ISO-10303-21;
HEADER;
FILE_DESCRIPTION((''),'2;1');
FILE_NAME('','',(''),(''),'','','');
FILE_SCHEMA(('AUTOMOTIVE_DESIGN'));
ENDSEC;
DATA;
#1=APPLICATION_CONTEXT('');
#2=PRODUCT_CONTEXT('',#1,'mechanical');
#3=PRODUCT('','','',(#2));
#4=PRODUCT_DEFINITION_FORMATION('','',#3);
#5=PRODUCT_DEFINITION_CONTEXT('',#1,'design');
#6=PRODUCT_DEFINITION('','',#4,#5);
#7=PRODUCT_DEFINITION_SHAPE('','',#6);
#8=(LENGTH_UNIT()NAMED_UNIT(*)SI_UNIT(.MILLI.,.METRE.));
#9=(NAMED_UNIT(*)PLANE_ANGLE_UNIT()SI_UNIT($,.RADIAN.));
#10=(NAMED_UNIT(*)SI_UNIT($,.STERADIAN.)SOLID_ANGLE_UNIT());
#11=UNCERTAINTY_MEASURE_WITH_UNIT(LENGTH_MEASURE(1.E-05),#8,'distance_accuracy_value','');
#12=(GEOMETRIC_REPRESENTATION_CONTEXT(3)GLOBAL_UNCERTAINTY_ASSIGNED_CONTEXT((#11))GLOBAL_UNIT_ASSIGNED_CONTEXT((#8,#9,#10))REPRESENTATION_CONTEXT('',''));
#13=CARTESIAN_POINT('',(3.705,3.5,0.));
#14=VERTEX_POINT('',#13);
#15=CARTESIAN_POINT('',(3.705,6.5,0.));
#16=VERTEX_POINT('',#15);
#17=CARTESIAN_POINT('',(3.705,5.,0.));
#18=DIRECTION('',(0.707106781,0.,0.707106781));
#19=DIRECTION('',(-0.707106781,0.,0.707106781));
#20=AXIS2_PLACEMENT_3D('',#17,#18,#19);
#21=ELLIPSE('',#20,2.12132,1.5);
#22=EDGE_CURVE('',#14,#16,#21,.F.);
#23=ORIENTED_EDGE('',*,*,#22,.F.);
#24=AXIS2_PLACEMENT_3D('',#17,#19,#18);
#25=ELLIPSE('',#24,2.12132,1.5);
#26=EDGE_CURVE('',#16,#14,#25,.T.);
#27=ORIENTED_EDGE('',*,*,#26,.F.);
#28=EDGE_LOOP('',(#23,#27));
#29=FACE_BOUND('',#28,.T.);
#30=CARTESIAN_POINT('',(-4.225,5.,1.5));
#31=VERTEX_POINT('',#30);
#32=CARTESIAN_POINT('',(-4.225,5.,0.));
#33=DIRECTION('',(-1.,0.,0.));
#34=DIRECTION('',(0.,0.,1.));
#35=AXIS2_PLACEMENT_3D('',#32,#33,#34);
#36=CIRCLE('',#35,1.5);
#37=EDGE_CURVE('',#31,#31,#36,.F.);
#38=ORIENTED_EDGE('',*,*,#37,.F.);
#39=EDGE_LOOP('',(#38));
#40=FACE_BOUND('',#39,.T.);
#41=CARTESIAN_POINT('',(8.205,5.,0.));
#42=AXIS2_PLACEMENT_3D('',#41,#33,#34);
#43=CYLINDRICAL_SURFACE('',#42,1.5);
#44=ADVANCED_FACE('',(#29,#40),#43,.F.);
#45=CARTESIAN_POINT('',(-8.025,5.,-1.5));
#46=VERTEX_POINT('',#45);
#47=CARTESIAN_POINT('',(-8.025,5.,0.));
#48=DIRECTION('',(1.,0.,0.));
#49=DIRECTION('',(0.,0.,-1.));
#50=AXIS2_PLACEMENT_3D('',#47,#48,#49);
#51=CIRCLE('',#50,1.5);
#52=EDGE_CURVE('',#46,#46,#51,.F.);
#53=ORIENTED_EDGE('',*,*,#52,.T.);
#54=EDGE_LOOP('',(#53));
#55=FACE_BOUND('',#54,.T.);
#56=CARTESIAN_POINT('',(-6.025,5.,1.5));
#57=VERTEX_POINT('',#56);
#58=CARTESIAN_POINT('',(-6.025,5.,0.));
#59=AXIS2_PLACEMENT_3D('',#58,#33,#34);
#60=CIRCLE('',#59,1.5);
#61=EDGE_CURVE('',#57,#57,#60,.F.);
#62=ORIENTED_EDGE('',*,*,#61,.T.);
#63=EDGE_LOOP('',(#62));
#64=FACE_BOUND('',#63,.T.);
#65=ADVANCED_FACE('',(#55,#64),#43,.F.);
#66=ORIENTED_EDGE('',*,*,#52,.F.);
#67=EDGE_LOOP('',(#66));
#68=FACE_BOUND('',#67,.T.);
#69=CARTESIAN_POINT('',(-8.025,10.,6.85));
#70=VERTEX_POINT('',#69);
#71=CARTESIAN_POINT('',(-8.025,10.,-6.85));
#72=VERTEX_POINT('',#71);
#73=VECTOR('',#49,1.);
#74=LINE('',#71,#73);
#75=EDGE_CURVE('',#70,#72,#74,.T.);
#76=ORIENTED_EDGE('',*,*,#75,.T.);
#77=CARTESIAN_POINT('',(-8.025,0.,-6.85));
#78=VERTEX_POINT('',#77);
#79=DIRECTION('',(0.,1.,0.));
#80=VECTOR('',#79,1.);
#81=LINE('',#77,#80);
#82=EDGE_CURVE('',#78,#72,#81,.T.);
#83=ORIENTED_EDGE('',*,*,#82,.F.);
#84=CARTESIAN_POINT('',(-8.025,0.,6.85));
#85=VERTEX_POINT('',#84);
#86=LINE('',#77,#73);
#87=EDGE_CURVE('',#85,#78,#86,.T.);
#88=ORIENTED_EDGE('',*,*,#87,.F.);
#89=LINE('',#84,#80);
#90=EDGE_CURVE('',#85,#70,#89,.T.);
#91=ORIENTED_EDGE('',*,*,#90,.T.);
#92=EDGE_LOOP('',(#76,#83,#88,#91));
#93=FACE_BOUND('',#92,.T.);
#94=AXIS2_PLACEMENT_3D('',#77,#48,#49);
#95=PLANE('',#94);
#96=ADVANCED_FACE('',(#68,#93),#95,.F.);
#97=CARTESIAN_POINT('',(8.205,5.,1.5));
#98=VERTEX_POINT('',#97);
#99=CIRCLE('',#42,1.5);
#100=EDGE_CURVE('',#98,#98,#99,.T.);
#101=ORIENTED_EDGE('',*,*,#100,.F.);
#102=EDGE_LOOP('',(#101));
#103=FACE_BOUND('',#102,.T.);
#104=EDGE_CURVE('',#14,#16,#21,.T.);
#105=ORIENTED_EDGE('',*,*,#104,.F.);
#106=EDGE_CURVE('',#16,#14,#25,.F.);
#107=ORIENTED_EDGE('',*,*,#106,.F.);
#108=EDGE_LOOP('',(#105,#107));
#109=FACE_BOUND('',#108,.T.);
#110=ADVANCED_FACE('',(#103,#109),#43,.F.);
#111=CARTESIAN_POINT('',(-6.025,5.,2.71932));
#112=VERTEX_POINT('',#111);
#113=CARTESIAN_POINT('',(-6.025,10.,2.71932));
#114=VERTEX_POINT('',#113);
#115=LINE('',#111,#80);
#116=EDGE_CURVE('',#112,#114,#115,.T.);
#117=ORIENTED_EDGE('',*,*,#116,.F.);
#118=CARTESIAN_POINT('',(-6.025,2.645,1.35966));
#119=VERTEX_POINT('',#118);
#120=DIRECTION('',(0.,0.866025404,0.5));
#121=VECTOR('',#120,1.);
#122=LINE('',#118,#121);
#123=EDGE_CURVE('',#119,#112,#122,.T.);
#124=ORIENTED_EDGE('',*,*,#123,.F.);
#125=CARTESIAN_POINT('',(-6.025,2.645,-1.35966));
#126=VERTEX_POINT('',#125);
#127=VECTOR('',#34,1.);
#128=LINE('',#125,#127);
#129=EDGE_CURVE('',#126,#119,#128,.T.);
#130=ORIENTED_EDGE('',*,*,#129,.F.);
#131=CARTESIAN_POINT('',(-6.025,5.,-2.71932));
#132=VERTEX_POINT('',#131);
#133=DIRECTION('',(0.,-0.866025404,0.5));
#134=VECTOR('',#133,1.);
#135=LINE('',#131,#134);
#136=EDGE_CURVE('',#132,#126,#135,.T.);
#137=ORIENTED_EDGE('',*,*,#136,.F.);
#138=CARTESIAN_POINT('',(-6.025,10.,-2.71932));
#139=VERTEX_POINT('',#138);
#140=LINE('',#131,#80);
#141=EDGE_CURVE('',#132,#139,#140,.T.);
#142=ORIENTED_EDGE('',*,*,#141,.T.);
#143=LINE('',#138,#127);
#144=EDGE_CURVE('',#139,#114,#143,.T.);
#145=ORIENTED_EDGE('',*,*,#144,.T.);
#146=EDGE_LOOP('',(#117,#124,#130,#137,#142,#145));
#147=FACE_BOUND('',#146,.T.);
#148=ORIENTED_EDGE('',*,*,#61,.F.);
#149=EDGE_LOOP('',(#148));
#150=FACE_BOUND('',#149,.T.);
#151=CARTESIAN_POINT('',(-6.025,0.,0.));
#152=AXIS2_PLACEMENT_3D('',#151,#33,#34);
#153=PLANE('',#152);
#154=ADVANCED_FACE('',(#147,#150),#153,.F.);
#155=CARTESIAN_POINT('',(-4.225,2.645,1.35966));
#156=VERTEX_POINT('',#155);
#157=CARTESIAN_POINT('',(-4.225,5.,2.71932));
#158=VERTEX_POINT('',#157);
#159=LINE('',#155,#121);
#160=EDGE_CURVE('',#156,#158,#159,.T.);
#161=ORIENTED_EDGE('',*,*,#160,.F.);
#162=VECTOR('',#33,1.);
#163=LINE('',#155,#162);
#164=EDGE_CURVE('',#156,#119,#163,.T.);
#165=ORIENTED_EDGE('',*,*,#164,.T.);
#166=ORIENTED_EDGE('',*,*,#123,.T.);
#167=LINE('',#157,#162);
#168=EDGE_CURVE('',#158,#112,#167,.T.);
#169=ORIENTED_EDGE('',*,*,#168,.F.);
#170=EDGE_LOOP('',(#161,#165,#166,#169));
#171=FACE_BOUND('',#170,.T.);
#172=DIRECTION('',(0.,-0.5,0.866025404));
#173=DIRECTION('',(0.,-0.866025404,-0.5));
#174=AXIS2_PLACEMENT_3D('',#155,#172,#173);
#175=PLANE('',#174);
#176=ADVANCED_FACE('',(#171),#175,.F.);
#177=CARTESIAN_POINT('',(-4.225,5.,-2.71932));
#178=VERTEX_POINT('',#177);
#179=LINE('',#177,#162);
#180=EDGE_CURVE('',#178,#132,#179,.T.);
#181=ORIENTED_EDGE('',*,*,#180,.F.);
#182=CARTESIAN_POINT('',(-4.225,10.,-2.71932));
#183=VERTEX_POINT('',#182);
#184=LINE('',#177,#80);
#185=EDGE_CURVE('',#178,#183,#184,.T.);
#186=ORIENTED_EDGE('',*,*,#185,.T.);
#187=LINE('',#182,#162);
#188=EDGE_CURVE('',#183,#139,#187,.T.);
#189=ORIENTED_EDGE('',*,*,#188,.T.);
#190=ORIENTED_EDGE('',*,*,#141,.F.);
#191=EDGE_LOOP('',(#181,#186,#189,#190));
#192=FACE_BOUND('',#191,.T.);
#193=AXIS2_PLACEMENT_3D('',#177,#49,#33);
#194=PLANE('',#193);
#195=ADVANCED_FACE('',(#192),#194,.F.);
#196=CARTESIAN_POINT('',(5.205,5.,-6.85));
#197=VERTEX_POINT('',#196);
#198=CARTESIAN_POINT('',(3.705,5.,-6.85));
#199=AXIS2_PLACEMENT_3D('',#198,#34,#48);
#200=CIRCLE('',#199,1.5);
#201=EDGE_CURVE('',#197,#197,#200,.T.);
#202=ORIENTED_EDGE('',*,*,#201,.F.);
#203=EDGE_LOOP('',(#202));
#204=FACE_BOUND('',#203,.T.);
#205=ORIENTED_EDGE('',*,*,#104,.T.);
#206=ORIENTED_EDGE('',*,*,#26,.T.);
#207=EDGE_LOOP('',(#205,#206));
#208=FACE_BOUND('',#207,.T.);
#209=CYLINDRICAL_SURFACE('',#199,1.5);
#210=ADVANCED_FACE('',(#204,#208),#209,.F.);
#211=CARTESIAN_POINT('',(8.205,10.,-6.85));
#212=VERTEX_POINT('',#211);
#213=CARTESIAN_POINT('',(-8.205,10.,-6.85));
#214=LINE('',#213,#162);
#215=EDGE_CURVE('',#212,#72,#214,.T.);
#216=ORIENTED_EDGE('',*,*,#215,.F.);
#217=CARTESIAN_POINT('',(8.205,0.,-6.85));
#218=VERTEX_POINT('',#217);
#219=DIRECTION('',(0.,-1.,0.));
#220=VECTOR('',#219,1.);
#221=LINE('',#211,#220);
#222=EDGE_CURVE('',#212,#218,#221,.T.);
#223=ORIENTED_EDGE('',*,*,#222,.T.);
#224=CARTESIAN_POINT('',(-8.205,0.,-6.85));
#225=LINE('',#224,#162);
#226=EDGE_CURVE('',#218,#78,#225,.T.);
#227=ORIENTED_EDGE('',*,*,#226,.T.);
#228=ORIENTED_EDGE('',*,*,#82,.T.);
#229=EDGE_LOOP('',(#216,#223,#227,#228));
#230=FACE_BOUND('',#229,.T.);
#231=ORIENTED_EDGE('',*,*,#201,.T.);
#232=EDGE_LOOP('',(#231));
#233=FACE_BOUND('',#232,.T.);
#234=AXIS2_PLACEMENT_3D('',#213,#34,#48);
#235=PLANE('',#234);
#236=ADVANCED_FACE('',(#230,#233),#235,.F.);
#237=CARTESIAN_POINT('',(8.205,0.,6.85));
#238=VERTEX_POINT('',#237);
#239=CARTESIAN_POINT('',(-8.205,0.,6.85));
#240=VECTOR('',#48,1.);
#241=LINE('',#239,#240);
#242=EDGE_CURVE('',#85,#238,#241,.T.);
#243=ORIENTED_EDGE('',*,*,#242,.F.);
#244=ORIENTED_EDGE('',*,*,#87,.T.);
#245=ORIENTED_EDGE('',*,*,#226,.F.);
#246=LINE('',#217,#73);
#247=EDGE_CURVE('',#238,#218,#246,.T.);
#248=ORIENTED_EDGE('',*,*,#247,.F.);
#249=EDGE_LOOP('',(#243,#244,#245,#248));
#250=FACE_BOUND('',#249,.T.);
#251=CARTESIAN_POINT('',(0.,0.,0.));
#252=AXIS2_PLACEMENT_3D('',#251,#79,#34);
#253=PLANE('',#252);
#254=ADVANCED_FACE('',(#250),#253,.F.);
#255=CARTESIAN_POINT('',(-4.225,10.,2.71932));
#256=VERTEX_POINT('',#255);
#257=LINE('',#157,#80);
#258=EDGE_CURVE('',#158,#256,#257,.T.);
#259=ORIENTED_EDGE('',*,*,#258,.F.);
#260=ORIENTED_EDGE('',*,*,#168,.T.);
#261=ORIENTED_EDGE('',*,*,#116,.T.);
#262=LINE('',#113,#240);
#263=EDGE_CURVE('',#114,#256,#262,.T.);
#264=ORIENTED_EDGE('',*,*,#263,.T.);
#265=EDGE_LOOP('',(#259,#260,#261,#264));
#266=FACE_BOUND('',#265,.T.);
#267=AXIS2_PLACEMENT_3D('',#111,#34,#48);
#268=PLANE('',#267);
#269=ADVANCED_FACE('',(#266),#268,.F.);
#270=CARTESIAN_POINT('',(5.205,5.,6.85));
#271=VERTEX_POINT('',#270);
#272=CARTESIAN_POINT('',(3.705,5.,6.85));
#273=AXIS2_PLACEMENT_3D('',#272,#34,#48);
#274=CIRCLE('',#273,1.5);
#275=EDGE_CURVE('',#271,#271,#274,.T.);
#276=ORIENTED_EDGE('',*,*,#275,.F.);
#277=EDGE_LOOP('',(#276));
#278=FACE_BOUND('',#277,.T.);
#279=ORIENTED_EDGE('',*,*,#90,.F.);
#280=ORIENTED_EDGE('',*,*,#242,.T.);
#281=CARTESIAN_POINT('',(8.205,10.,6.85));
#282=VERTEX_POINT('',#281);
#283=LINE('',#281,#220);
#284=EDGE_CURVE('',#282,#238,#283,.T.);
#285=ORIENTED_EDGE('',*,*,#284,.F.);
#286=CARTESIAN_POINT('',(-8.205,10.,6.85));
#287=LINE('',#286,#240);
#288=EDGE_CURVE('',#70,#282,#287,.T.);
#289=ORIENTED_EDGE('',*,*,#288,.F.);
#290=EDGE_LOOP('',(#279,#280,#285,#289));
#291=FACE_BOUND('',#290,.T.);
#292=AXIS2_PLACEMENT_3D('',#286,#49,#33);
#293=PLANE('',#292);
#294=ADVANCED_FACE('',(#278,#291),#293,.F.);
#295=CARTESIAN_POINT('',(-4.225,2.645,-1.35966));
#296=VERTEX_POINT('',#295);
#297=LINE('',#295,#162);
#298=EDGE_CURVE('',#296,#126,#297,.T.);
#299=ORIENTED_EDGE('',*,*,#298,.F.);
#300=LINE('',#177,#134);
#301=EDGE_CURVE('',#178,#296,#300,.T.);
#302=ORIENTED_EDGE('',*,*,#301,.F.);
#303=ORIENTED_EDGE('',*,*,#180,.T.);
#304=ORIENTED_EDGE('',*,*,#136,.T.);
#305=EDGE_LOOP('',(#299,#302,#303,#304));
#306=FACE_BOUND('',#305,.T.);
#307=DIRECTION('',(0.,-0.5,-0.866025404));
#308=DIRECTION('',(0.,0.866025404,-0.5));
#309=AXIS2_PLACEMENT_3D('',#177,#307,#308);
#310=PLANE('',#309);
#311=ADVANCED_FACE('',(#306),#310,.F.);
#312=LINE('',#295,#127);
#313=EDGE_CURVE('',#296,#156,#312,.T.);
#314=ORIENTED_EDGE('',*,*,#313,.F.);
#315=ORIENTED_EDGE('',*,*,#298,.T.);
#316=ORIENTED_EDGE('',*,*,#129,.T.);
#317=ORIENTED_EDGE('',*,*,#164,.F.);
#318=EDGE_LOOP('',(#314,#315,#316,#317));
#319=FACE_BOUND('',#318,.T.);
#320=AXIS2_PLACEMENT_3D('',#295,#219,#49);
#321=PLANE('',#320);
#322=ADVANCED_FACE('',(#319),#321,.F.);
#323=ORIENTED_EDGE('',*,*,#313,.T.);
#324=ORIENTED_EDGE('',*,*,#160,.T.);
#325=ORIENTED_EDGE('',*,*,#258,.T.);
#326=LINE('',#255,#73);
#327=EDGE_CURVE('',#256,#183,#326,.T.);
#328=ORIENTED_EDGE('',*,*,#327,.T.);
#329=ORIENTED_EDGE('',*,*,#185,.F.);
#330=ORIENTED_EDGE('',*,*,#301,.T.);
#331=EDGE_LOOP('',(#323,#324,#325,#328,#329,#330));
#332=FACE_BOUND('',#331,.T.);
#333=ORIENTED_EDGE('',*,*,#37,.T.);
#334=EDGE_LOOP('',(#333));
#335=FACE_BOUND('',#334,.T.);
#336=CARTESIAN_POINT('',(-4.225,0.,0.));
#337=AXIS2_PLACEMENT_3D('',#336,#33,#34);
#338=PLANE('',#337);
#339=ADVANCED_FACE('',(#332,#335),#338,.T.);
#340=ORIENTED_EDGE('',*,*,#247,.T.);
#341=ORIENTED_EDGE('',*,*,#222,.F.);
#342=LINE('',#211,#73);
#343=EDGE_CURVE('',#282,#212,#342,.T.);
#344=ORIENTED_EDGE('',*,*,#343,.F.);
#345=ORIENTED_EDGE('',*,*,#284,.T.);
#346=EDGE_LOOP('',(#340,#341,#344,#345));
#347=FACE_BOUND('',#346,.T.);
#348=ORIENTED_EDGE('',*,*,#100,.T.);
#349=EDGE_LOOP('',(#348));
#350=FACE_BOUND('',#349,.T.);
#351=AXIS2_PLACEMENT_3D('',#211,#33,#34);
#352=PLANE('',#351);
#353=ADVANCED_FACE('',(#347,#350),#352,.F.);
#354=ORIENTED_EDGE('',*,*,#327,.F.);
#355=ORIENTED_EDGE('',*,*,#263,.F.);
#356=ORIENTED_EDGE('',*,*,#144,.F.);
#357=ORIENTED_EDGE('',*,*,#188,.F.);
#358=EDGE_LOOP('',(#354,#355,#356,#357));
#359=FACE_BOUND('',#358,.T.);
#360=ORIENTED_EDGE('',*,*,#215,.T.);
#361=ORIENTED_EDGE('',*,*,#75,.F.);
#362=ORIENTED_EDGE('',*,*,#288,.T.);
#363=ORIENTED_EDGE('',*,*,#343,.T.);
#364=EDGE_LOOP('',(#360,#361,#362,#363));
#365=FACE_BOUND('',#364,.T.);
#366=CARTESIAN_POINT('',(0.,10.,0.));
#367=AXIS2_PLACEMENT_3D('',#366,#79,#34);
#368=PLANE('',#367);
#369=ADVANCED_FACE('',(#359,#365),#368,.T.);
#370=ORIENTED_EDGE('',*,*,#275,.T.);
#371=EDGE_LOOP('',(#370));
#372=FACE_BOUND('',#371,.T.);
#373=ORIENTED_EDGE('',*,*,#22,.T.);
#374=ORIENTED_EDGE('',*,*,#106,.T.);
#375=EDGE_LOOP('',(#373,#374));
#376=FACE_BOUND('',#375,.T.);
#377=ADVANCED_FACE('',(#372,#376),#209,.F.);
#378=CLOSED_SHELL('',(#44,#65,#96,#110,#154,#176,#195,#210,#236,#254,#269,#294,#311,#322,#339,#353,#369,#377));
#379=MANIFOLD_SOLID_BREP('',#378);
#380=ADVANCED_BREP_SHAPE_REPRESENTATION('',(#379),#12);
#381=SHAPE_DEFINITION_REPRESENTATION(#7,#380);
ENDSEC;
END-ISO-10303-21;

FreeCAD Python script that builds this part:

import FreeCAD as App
import Part
import Sketcher
Q = App.Units.Quantity


def add_polygon(sketch, points):
    """Adds a closed chain of lines whose ends are joined by coincident constraints."""
    first, n = sketch.GeometryCount, len(points)
    for a, b in zip(points, points[1:] + points[:1]):
        sketch.addGeometry(Part.LineSegment(App.Vector(*a, 0), App.Vector(*b, 0)), False)
    for i in range(n):
        sketch.addConstraint(Sketcher.Constraint("Coincident", first + i, 2, first + (i + 1) % n, 1))

doc = App.newDocument("Part")
params = doc.addObject("Spreadsheet::Sheet", "Params")
for row, (alias, value) in enumerate([
    ("sketch1_height", "13.7 mm"),
    ("sketch1_width", "16.41 mm"),
    ("pad1_length", "10 mm"),
    ("sketch2_diameter", "3 mm"),
    ("sketch3_diameter", "3 mm"),
    ("sketch4_height", "13.7 mm"),
    ("sketch4_width", "0.18 mm"),
    ("pocket4_length", "1.8 mm"),
    ("sketch6_width", "1.8 mm"),
    ("pocket5_length", "5 mm"),
], start=1):
    params.set(f"A{row}", alias)
    params.set(f"B{row}", "=" + value)
    params.setAlias(f"B{row}", alias)

body = doc.addObject("PartDesign::Body", "Body")

# Sketch on XZ plane
sketch1 = doc.addObject("Sketcher::SketchObject", "Sketch")
body.addObject(sketch1)
sketch1.AttachmentSupport = (doc.XZ_Plane, [""])
sketch1.MapMode = "FlatFace"
add_polygon(sketch1, [(-8, -7), (-8, 7), (8, 7), (8, -7)])  # lines 0-3
sketch1.addConstraint(Sketcher.Constraint("Vertical", 0))
sketch1.addConstraint(Sketcher.Constraint("Horizontal", 1))
sketch1.addConstraint(Sketcher.Constraint("Vertical", 2))
sketch1.addConstraint(Sketcher.Constraint("Horizontal", 3))
sketch1.addConstraint(Sketcher.Constraint("Symmetric", 0, 2, 2, 2, -1, 1))
sketch1.addConstraint(Sketcher.Constraint("DistanceY", 0, 1, 0, 2, Q("13.7 mm")))
sketch1.addConstraint(Sketcher.Constraint("DistanceX", 1, 1, 1, 2, Q("16.41 mm")))
sketch1.setExpression("Constraints[9]", "Params.sketch1_height")
sketch1.setExpression("Constraints[10]", "Params.sketch1_width")
pad1 = doc.addObject("PartDesign::Pad", "Pad")
body.addObject(pad1)
pad1.Profile = sketch1
pad1.setExpression("Length", "Params.pad1_length")
pad1.Reversed = True

# Sketch on XY plane
sketch2 = doc.addObject("Sketcher::SketchObject", "Sketch001")
body.addObject(sketch2)
sketch2.AttachmentSupport = (doc.XY_Plane, [""])
sketch2.MapMode = "FlatFace"
sketch2.AttachmentOffset = App.Placement(App.Vector(0, 0, 6.85), App.Rotation())
sketch2.addGeometry(Part.Circle(App.Vector(3.7, 5, 0), App.Vector(0, 0, 1), 1.5), False)
sketch2.addConstraint(Sketcher.Constraint("Diameter", 0, Q("3 mm")))
sketch2.addConstraint(Sketcher.Constraint("DistanceY", -1, 1, 0, 3, Q("5 mm")))
sketch2.addConstraint(Sketcher.Constraint("DistanceX", -1, 1, 0, 3, Q("3.705 mm")))
sketch2.setExpression("Constraints[0]", "Params.sketch2_diameter")
pocket1 = doc.addObject("PartDesign::Pocket", "Pocket")
body.addObject(pocket1)
pocket1.Profile = sketch2
pocket1.Type = "ThroughAll"

# Sketch on YZ plane
sketch3 = doc.addObject("Sketcher::SketchObject", "Sketch002")
body.addObject(sketch3)
sketch3.AttachmentSupport = (doc.YZ_Plane, [""])
sketch3.MapMode = "FlatFace"
sketch3.AttachmentOffset = App.Placement(App.Vector(0, 0, -8.205), App.Rotation())
sketch3.addGeometry(Part.Circle(App.Vector(5, 0, 0), App.Vector(0, 0, 1), 1.5), False)
sketch3.addConstraint(Sketcher.Constraint("PointOnObject", 0, 3, -1))
sketch3.addConstraint(Sketcher.Constraint("Diameter", 0, Q("3 mm")))
sketch3.addConstraint(Sketcher.Constraint("DistanceX", -1, 1, 0, 3, Q("5 mm")))
sketch3.setExpression("Constraints[1]", "Params.sketch3_diameter")
pocket2 = doc.addObject("PartDesign::Pocket", "Pocket001")
body.addObject(pocket2)
pocket2.Profile = sketch3
pocket2.Type = "ThroughAll"
pocket2.Reversed = True

# Sketch on XZ plane
sketch4 = doc.addObject("Sketcher::SketchObject", "Sketch003")
body.addObject(sketch4)
sketch4.AttachmentSupport = (doc.XZ_Plane, [""])
sketch4.MapMode = "FlatFace"
sketch4.AttachmentOffset = App.Placement(App.Vector(0, 0, -10), App.Rotation())
add_polygon(sketch4, [(-8.21, -6.85), (-8.21, 6.85), (-8.03, 6.85), (-8.03, -6.85)])  # lines 0-3
sketch4.addConstraint(Sketcher.Constraint("Vertical", 0))
sketch4.addConstraint(Sketcher.Constraint("Horizontal", 1))
sketch4.addConstraint(Sketcher.Constraint("Vertical", 2))
sketch4.addConstraint(Sketcher.Constraint("Horizontal", 3))
sketch4.addConstraint(Sketcher.Constraint("DistanceY", 0, 1, 0, 2, Q("13.7 mm")))
sketch4.addConstraint(Sketcher.Constraint("DistanceX", 1, 1, 1, 2, Q("0.18 mm")))
sketch4.addConstraint(Sketcher.Constraint("DistanceY", -1, 1, 0, 2, Q("6.85 mm")))
sketch4.addConstraint(Sketcher.Constraint("DistanceX", 0, 2, -1, 1, Q("8.205 mm")))
sketch4.setExpression("Constraints[8]", "Params.sketch4_height")
sketch4.setExpression("Constraints[9]", "Params.sketch4_width")
pocket3 = doc.addObject("PartDesign::Pocket", "Pocket002")
body.addObject(pocket3)
pocket3.Profile = sketch4
pocket3.Type = "ThroughAll"
pocket3.Reversed = True

# Sketch on YZ plane
sketch5 = doc.addObject("Sketcher::SketchObject", "Sketch004")
body.addObject(sketch5)
sketch5.AttachmentSupport = (doc.YZ_Plane, [""])
sketch5.MapMode = "FlatFace"
sketch5.AttachmentOffset = App.Placement(App.Vector(0, 0, -6.025), App.Rotation())
add_polygon(sketch5, [(5, 2.7), (7.4, 1.4), (7.4, -1.4), (5, -2.7), (2.6, -1.4), (2.6, 1.4)])  # lines 0-5
sketch5.addConstraint(Sketcher.Constraint("Vertical", 1))
sketch5.addConstraint(Sketcher.Constraint("Vertical", 4))
sketch5.addConstraint(Sketcher.Constraint("Symmetric", 2, 2, 5, 2, -1))
sketch5.addConstraint(Sketcher.Constraint("Parallel", 0, 3))
sketch5.addConstraint(Sketcher.Constraint("Parallel", 2, 5))
sketch5.addConstraint(Sketcher.Constraint("Horizontal", 1, 2, 3, 2))
sketch5.addConstraint(Sketcher.Constraint("Horizontal", 0, 2, 4, 2))
sketch5.addConstraint(Sketcher.Constraint("Angle", 0, Q("-30 deg")))
sketch5.addConstraint(Sketcher.Constraint("DistanceX", -1, 1, 2, 2, Q("5 mm")))
sketch5.addConstraint(Sketcher.Constraint("DistanceX", 3, 2, 1, 2, Q("4.71 mm")))
sketch5.addConstraint(Sketcher.Constraint("DistanceY", 1, 2, 1, 1, Q("2.71932 mm")))
pocket4 = doc.addObject("PartDesign::Pocket", "Pocket003")
body.addObject(pocket4)
pocket4.Profile = sketch5
pocket4.setExpression("Length", "Params.pocket4_length")
pocket4.Reversed = True

# Sketch on XZ plane
sketch6 = doc.addObject("Sketcher::SketchObject", "Sketch005")
body.addObject(sketch6)
sketch6.AttachmentSupport = (doc.XZ_Plane, [""])
sketch6.MapMode = "FlatFace"
sketch6.AttachmentOffset = App.Placement(App.Vector(0, 0, -10), App.Rotation())
add_polygon(sketch6, [(-6, -2.7), (-6, 2.7), (-4.2, 2.7), (-4.2, -2.7)])  # lines 0-3
sketch6.addConstraint(Sketcher.Constraint("Vertical", 0))
sketch6.addConstraint(Sketcher.Constraint("Horizontal", 1))
sketch6.addConstraint(Sketcher.Constraint("Vertical", 2))
sketch6.addConstraint(Sketcher.Constraint("Horizontal", 3))
sketch6.addConstraint(Sketcher.Constraint("DistanceX", 1, 1, 1, 2, Q("1.8 mm")))
sketch6.addConstraint(Sketcher.Constraint("DistanceX", 0, 2, -1, 1, Q("6.025 mm")))
sketch6.addConstraint(Sketcher.Constraint("DistanceY", 0, 1, 0, 2, Q("5.43864 mm")))
sketch6.addConstraint(Sketcher.Constraint("DistanceY", -1, 1, 0, 2, Q("2.71932 mm")))
sketch6.setExpression("Constraints[8]", "Params.sketch6_width")
pocket5 = doc.addObject("PartDesign::Pocket", "Pocket004")
body.addObject(pocket5)
pocket5.Profile = sketch6
pocket5.setExpression("Length", "Params.pocket5_length")
pocket5.Reversed = True

doc.recompute()
